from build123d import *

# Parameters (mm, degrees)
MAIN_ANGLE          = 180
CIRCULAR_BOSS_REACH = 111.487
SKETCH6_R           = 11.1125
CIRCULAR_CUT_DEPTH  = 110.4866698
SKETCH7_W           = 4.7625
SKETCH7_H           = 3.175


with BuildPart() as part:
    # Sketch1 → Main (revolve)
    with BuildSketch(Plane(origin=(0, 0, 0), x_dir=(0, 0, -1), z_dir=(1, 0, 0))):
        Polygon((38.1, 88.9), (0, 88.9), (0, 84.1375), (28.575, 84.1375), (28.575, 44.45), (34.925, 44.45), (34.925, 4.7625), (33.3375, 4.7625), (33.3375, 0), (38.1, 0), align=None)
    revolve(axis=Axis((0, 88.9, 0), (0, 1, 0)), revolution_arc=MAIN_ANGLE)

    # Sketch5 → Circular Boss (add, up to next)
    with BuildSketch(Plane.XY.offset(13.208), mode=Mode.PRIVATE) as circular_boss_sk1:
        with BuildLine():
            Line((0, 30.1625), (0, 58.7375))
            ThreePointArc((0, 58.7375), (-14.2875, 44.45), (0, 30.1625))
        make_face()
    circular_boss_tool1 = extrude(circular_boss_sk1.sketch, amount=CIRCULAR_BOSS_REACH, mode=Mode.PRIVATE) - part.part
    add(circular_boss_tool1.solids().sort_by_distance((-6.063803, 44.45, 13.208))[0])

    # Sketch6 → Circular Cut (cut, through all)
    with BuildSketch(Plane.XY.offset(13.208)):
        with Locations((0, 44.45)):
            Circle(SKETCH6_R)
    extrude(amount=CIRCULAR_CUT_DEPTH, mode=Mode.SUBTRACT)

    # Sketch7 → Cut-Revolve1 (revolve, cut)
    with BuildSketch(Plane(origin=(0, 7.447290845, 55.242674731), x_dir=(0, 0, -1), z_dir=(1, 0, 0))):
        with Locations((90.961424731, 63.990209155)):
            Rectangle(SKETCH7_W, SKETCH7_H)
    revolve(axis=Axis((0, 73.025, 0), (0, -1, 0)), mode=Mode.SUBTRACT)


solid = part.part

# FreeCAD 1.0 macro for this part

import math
import FreeCAD as App
import Part
import Sketcher
from FreeCAD import Vector
Q = App.Units.Quantity

doc = App.newDocument("Part")
body = doc.addObject("PartDesign::Body", "Body")

# Sketch on YZ plane
sketch1 = body.newObject("Sketcher::SketchObject", "Sketch")
sketch1.AttachmentSupport = (doc.getObject("YZ_Plane"), [""])
sketch1.MapMode = "FlatFace"
sketch1.addGeometry([
    Part.LineSegment(Vector(88.9, -38.1, 0), Vector(88.9, 0, 0)),  # 0
    Part.LineSegment(Vector(88.9, 0, 0), Vector(84.1375, 0, 0)),  # 1
    Part.LineSegment(Vector(84.1375, 0, 0), Vector(84.1375, -28.575, 0)),  # 2
    Part.LineSegment(Vector(84.1375, -28.575, 0), Vector(44.45, -28.575, 0)),  # 3
    Part.LineSegment(Vector(44.45, -28.575, 0), Vector(44.45, -34.925, 0)),  # 4
    Part.LineSegment(Vector(44.45, -34.925, 0), Vector(4.7625, -34.925, 0)),  # 5
    Part.LineSegment(Vector(4.7625, -34.925, 0), Vector(4.7625, -33.3375, 0)),  # 6
    Part.LineSegment(Vector(4.7625, -33.3375, 0), Vector(0, -33.3375, 0)),  # 7
    Part.LineSegment(Vector(0, -33.3375, 0), Vector(0, -38.1, 0)),  # 8
    Part.LineSegment(Vector(0, -38.1, 0), Vector(88.9, -38.1, 0)),  # 9
], False)
sketch1.addConstraint([
    Sketcher.Constraint("Coincident", 0, 2, 1, 1),
    Sketcher.Constraint("Coincident", 1, 2, 2, 1),
    Sketcher.Constraint("Coincident", 2, 2, 3, 1),
    Sketcher.Constraint("Coincident", 3, 2, 4, 1),
    Sketcher.Constraint("Coincident", 4, 2, 5, 1),
    Sketcher.Constraint("Coincident", 5, 2, 6, 1),
    Sketcher.Constraint("Coincident", 6, 2, 7, 1),
    Sketcher.Constraint("Coincident", 7, 2, 8, 1),
    Sketcher.Constraint("Coincident", 8, 2, 9, 1),
    Sketcher.Constraint("Coincident", 9, 2, 0, 1),
    Sketcher.Constraint("Vertical", 0),
    Sketcher.Constraint("Horizontal", 1),
    Sketcher.Constraint("Vertical", 2),
    Sketcher.Constraint("Horizontal", 3),
    Sketcher.Constraint("Vertical", 4),
    Sketcher.Constraint("Horizontal", 5),
    Sketcher.Constraint("Vertical", 6),
    Sketcher.Constraint("Horizontal", 7),
    Sketcher.Constraint("Vertical", 8),
    Sketcher.Constraint("Horizontal", 9),
    Sketcher.Constraint("PointOnObject", 0, 2, -1),
    Sketcher.Constraint("PointOnObject", 7, 2, -2),
    Sketcher.Constraint("Equal", 3, 5),
    Sketcher.Constraint("Equal", 1, 7),
    Sketcher.Constraint("Equal", 7, 8),
    Sketcher.Constraint("DistanceX", 9, 1, 9, 2, Q("3.5 in")),
    Sketcher.Constraint("DistanceY", 0, 1, 0, 2, Q("1.5 in")),
    Sketcher.Constraint("DistanceY", 4, 2, 4, 1, Q("0.25 in")),
    Sketcher.Constraint("DistanceX", 1, 2, 1, 1, Q("0.1875 in")),
    Sketcher.Constraint("DistanceY", 2, 2, 2, 1, Q("1.125 in")),
])
revolution = body.newObject("PartDesign::Revolution", "Revolution")
revolution.Profile = sketch1
revolution.ReferenceAxis = (sketch1, ["H_Axis"])
revolution.Angle = 180

# Sketch on XY plane
sketch2 = body.newObject("Sketcher::SketchObject", "Sketch001")
sketch2.AttachmentSupport = (doc.getObject("XY_Plane"), [""])
sketch2.MapMode = "FlatFace"
sketch2.AttachmentOffset = App.Placement(Vector(0, 0, 0.52 * 25.4), App.Rotation())
sketch2.addGeometry([
    Part.LineSegment(Vector(0, 30.1625, 0), Vector(0, 58.7375, 0)),
    Part.ArcOfCircle(Part.Circle(Vector(0, 44.45, 0), Vector(0, 0, 1), 14.2875), math.radians(90), math.radians(270)),
], False)
sketch2.addConstraint([
    Sketcher.Constraint("Coincident", 0, 1, 1, 2),
    Sketcher.Constraint("Coincident", 1, 1, 0, 2),
    Sketcher.Constraint("Vertical", 0),
    Sketcher.Constraint("PointOnObject", 1, 3, -2),
    Sketcher.Constraint("PointOnObject", 0, 1, -2),
    Sketcher.Constraint("Radius", 1, Q("0.5625 in")),
    Sketcher.Constraint("DistanceY", -1, 1, 1, 3, Q("1.75 in")),
])
pad1 = body.newObject("PartDesign::Pad", "Pad")
pad1.Profile = sketch2
pad1.Length = Q("0.855 in")

# Sketch on XY plane
sketch3 = body.newObject("Sketcher::SketchObject", "Sketch002")
sketch3.AttachmentSupport = (doc.getObject("XY_Plane"), [""])
sketch3.MapMode = "FlatFace"
sketch3.AttachmentOffset = App.Placement(Vector(0, 0, 0.52 * 25.4), App.Rotation())
sketch3.addGeometry(Part.Circle(Vector(0, 44.45, 0), Vector(0, 0, 1), 11.1125), False)
sketch3.addConstraint([
    Sketcher.Constraint("PointOnObject", 0, 3, -2),
    Sketcher.Constraint("Diameter", 0, Q("0.875 in")),
    Sketcher.Constraint("DistanceY", -1, 1, 0, 3, Q("1.75 in")),
])
pocket1 = body.newObject("PartDesign::Pocket", "Pocket")
pocket1.Profile = sketch3
pocket1.Type = "ThroughAll"
pocket1.Reversed = True

# Sketch on YZ plane
sketch4 = body.newObject("Sketcher::SketchObject", "Sketch003")
sketch4.AttachmentSupport = (doc.getObject("YZ_Plane"), [""])
sketch4.MapMode = "FlatFace"
sketch4.addGeometry([
    Part.LineSegment(Vector(73.025, -33.3375, 0), Vector(69.85, -33.3375, 0)),
    Part.LineSegment(Vector(69.85, -33.3375, 0), Vector(69.85, -38.1, 0)),
    Part.LineSegment(Vector(69.85, -38.1, 0), Vector(73.025, -38.1, 0)),
    Part.LineSegment(Vector(73.025, -38.1, 0), Vector(73.025, -33.3375, 0)),
], False)
sketch4.addConstraint([
    Sketcher.Constraint("Coincident", 0, 2, 1, 1),
    Sketcher.Constraint("Coincident", 1, 2, 2, 1),
    Sketcher.Constraint("Coincident", 2, 2, 3, 1),
    Sketcher.Constraint("Coincident", 3, 2, 0, 1),
    Sketcher.Constraint("Horizontal", 0),
    Sketcher.Constraint("Vertical", 1),
    Sketcher.Constraint("Horizontal", 2),
    Sketcher.Constraint("Vertical", 3),
    Sketcher.Constraint("DistanceY", 1, 2, -1, 1, Q("1.5 in")),
    Sketcher.Constraint("DistanceX", 0, 2, 0, 1, Q("0.125 in")),
    Sketcher.Constraint("DistanceY", 1, 2, 1, 1, Q("0.1875 in")),
    Sketcher.Constraint("DistanceX", -1, 1, 0, 2, Q("2.75 in")),
])
groove = body.newObject("PartDesign::Groove", "Groove")
groove.Profile = sketch4
groove.ReferenceAxis = (sketch4, ["H_Axis"])
groove.Angle = 360

doc.recompute()
